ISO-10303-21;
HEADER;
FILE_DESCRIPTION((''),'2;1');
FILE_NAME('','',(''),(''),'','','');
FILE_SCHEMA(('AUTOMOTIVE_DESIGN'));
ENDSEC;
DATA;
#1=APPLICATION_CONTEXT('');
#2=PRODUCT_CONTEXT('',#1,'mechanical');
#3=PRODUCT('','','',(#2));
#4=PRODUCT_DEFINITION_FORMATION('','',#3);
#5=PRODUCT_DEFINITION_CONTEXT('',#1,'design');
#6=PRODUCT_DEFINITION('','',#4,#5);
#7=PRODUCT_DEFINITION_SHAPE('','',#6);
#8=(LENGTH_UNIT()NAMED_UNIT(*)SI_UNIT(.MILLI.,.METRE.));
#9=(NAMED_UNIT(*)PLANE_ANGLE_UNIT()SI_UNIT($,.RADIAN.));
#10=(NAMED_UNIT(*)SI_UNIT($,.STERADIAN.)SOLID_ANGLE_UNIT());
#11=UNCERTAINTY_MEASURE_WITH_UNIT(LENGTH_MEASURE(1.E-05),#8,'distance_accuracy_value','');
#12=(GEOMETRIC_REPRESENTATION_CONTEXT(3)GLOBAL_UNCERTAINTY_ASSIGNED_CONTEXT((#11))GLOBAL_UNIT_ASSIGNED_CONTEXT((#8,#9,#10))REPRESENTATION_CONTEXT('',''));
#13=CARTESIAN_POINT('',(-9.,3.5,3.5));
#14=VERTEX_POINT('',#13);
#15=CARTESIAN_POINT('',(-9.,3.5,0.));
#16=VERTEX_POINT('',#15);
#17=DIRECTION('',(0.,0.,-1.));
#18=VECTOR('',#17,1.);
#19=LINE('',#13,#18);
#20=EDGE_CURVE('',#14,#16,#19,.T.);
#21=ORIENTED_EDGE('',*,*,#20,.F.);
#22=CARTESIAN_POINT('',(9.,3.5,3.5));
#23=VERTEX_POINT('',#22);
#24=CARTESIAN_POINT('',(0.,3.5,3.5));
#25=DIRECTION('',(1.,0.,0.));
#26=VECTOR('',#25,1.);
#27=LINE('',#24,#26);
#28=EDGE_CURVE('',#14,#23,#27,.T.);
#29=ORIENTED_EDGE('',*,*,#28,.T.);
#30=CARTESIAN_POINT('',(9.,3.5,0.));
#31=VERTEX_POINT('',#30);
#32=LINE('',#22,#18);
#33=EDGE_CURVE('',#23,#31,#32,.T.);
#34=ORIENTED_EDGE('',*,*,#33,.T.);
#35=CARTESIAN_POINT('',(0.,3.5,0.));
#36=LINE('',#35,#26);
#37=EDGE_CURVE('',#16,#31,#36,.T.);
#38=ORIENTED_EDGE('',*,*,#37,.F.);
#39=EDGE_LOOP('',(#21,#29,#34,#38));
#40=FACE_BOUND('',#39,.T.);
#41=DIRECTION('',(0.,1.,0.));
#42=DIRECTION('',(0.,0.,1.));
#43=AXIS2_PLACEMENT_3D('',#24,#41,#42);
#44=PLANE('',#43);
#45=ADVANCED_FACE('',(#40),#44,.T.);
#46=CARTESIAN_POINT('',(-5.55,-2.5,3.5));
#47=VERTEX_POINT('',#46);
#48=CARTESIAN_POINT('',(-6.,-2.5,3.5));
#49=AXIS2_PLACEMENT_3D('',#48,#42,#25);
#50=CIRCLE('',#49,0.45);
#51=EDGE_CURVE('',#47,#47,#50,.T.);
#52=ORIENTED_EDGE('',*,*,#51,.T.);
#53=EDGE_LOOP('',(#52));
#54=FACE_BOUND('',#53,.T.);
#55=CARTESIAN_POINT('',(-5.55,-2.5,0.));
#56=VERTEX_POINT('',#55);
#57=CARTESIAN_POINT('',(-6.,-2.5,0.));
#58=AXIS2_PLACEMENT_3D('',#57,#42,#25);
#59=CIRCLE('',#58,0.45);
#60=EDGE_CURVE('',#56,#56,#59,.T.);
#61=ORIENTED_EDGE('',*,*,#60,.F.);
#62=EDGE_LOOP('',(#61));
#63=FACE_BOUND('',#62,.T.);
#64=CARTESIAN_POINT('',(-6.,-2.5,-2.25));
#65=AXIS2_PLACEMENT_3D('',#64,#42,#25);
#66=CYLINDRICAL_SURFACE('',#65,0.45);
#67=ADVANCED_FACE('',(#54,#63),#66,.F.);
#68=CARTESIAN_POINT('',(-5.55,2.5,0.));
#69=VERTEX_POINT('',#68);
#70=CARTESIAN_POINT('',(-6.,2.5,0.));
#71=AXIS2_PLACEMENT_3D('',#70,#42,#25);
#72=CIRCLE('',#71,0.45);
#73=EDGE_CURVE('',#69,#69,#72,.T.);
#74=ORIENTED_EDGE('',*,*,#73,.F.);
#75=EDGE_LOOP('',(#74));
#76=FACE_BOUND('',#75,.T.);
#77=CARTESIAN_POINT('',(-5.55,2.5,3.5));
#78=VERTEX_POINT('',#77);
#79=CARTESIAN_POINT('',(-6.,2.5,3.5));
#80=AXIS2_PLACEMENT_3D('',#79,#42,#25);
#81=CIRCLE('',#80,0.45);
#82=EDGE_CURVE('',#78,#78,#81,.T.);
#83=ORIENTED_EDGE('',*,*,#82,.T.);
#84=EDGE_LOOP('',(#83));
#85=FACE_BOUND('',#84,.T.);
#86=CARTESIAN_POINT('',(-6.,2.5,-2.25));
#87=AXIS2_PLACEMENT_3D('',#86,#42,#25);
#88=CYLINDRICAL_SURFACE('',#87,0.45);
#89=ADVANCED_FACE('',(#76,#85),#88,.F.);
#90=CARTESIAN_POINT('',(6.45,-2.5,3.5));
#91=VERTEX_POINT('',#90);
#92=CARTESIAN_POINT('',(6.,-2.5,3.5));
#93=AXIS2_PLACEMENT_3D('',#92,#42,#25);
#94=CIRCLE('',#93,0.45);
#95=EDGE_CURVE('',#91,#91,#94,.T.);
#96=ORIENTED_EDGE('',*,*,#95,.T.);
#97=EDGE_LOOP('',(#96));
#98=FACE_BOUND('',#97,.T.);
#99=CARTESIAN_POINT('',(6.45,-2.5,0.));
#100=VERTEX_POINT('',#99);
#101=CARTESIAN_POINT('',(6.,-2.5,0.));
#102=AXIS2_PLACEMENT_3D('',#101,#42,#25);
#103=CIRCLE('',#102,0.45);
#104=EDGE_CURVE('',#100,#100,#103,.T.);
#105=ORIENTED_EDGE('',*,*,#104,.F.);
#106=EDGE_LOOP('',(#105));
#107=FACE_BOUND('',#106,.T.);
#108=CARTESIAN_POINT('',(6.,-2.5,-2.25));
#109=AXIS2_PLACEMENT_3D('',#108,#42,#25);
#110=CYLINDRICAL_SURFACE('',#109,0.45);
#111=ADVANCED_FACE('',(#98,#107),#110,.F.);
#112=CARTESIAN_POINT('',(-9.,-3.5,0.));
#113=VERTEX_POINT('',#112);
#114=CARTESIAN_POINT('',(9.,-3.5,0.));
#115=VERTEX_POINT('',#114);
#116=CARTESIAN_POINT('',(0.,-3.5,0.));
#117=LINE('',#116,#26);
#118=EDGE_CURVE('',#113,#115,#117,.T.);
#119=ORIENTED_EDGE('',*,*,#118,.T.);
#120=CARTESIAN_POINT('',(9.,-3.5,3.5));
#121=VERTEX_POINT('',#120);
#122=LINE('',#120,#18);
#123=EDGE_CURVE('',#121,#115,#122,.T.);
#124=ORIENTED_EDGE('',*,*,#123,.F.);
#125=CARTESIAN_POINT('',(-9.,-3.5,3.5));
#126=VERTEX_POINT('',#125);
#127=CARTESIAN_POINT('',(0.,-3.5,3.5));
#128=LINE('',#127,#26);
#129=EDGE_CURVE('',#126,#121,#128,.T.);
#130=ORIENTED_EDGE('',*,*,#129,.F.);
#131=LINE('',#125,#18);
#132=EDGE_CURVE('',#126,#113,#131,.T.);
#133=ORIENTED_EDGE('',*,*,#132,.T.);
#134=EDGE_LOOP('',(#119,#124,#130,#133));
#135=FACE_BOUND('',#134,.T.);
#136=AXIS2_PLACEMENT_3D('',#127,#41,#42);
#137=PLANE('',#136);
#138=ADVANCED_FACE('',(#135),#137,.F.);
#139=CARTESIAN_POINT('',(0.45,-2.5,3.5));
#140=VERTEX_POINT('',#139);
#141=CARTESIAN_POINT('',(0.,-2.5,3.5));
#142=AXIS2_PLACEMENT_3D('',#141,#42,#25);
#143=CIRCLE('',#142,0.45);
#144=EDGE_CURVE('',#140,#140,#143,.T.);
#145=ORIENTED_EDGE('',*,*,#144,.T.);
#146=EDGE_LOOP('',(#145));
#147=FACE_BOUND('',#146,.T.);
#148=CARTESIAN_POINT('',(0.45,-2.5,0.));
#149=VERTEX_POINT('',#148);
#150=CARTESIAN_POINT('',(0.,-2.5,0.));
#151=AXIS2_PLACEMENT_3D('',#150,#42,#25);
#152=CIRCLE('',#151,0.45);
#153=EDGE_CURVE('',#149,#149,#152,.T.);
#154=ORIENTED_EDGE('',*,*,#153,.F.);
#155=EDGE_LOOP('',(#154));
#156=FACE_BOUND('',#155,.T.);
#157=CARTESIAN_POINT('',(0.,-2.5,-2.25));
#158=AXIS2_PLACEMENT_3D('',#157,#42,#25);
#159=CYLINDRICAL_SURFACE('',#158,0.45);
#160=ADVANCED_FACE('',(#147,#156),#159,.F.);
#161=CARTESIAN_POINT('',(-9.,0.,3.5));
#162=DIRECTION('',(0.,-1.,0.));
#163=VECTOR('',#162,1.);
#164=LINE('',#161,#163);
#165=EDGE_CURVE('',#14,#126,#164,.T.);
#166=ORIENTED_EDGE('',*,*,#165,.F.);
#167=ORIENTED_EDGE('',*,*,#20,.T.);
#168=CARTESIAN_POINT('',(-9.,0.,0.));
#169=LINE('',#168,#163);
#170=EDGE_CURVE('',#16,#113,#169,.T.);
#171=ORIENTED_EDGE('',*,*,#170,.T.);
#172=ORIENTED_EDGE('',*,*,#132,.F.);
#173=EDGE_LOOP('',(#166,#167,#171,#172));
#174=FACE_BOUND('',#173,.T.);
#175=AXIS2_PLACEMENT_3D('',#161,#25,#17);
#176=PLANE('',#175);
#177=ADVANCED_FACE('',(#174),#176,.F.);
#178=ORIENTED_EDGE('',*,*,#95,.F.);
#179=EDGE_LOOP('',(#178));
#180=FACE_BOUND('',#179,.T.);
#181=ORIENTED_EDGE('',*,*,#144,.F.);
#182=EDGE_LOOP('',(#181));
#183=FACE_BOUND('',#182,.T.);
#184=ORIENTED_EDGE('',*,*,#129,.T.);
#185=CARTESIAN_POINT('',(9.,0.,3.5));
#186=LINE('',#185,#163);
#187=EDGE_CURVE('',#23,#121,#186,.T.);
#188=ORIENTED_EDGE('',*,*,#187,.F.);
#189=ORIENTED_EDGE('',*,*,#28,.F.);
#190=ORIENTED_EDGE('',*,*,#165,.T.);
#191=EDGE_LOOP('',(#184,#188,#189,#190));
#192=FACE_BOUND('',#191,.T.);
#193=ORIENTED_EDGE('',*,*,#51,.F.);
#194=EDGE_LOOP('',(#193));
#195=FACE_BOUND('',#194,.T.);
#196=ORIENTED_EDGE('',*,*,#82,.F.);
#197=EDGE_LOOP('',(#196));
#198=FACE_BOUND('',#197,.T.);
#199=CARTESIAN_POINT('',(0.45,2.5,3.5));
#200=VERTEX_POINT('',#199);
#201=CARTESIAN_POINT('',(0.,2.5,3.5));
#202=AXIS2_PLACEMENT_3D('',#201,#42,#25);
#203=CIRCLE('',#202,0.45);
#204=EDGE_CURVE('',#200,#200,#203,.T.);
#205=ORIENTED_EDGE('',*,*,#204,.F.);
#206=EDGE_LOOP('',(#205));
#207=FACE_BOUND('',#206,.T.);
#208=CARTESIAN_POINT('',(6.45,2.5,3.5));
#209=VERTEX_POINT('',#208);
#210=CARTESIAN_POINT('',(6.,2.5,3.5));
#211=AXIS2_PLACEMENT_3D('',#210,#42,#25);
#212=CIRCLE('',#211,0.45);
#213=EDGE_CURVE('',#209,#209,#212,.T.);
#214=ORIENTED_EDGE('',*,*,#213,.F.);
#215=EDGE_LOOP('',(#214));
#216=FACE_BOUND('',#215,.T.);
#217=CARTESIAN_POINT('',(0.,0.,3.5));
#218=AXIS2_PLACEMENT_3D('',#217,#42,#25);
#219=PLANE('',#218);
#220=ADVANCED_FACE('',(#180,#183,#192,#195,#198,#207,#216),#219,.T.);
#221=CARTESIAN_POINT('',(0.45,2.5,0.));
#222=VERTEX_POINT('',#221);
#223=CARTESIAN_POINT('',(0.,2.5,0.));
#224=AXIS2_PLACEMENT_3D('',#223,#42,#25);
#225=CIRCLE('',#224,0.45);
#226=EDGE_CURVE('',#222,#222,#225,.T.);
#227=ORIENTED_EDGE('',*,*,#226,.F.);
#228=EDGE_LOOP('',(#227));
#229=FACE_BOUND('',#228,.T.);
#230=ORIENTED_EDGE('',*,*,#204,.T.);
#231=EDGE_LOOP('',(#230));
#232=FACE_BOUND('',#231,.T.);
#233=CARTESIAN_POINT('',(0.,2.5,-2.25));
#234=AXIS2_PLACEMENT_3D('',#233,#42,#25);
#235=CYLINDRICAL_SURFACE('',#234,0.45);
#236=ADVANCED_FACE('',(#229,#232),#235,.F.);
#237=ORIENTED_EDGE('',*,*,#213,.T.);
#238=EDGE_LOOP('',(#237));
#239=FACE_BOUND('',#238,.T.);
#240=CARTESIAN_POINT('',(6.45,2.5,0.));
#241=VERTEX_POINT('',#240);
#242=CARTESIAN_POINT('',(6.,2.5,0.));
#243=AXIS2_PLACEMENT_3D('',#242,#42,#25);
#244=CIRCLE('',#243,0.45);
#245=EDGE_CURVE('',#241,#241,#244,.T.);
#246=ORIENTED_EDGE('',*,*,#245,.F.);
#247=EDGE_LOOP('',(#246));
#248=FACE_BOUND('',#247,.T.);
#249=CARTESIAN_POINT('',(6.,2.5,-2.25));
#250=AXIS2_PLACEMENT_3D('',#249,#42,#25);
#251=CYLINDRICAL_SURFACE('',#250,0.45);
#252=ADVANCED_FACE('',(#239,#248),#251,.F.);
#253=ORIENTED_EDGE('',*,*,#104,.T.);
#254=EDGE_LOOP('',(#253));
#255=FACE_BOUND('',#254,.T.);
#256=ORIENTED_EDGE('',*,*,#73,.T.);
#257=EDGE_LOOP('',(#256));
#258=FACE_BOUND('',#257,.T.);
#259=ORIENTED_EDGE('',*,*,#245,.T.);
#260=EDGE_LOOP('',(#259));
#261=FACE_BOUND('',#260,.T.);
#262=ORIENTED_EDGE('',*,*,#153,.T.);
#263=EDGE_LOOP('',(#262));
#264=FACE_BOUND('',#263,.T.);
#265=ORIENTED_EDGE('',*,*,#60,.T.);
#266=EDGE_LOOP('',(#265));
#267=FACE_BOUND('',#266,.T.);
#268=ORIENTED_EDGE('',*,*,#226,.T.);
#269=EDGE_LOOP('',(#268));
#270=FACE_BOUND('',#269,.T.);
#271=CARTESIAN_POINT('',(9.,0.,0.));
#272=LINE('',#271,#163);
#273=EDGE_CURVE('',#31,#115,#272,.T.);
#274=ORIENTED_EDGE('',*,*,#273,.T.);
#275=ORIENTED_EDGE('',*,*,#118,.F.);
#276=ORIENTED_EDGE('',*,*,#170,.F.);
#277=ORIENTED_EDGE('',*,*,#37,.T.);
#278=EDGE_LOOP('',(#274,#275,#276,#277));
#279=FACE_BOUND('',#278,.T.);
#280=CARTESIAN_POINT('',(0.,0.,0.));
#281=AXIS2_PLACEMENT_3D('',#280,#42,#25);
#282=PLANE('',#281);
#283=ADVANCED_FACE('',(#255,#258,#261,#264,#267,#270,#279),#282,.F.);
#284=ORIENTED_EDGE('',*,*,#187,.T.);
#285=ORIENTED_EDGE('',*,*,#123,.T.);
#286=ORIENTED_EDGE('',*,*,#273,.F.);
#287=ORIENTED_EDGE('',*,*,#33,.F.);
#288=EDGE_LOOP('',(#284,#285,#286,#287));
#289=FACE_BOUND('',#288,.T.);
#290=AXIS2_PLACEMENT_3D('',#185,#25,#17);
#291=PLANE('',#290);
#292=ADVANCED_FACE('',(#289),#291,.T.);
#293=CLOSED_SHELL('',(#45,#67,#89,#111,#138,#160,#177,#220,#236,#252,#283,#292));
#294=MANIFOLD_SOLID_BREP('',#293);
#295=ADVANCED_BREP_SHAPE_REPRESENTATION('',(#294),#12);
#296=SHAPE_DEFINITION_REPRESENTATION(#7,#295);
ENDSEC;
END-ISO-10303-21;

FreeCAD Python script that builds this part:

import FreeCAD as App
import Part
import Sketcher
Q = App.Units.Quantity


def add_polygon(sketch, points):
    """Adds a closed chain of lines whose ends are joined by coincident constraints."""
    first, n = sketch.GeometryCount, len(points)
    for a, b in zip(points, points[1:] + points[:1]):
        sketch.addGeometry(Part.LineSegment(App.Vector(*a, 0), App.Vector(*b, 0)), False)
    for i in range(n):
        sketch.addConstraint(Sketcher.Constraint("Coincident", first + i, 2, first + (i + 1) % n, 1))

doc = App.newDocument("Part")
body = doc.addObject("PartDesign::Body", "Body")

sketch1 = doc.addObject("Sketcher::SketchObject", "Sketch")
body.addObject(sketch1)
sketch1.AttachmentSupport = (doc.XY_Plane, [""])
sketch1.MapMode = "FlatFace"
add_polygon(sketch1, [(-9, 4), (-9, -4), (9, -4), (9, 4)])
sketch1.addConstraint([
    Sketcher.Constraint("Vertical", 0),
    Sketcher.Constraint("Horizontal", 1),
    Sketcher.Constraint("Vertical", 2),
    Sketcher.Constraint("Horizontal", 3),
    Sketcher.Constraint("Symmetric", 0, 2, 2, 2, -1, 1),
    Sketcher.Constraint("DistanceX", 1, 1, 1, 2, Q("18 mm")),
    Sketcher.Constraint("DistanceY", 0, 2, 0, 1, Q("7 mm")),
])
pad1 = doc.addObject("PartDesign::Pad", "Pad")
body.addObject(pad1)
pad1.Profile = sketch1
pad1.Length = 3.5

sketch2 = doc.addObject("Sketcher::SketchObject", "Sketch001")
body.addObject(sketch2)
sketch2.AttachmentSupport = (doc.XY_Plane, [""])
sketch2.MapMode = "FlatFace"
sketch2.AttachmentOffset = App.Placement(App.Vector(0, 0, 3.5), App.Rotation())
sketch2.addGeometry([
    Part.Circle(App.Vector(-6, 2.5, 0), App.Vector(0, 0, 1), 0.45),
    Part.Circle(App.Vector(-6, -2.5, 0), App.Vector(0, 0, 1), 0.45),
    Part.Circle(App.Vector(6, 2.5, 0), App.Vector(0, 0, 1), 0.45),
    Part.Circle(App.Vector(6, -2.5, 0), App.Vector(0, 0, 1), 0.45),
    Part.Circle(App.Vector(0, 2.5, 0), App.Vector(0, 0, 1), 0.45),
    Part.Circle(App.Vector(0, -2.5, 0), App.Vector(0, 0, 1), 0.45),
], False)
sketch2.addConstraint([
    Sketcher.Constraint("Equal", 0, 1),
    Sketcher.Constraint("Equal", 1, 2),
    Sketcher.Constraint("Equal", 2, 3),
    Sketcher.Constraint("Equal", 3, 4),
    Sketcher.Constraint("Equal", 4, 5),
    Sketcher.Constraint("Symmetric", 1, 3, 2, 3, -1, 1),
    Sketcher.Constraint("Symmetric", 0, 3, 3, 3, -1, 1),
    Sketcher.Constraint("Symmetric", 4, 3, 5, 3, -1, 1),
    Sketcher.Constraint("Symmetric", 0, 3, 2, 3, -2),
    Sketcher.Constraint("PointOnObject", 4, 3, -2),
    Sketcher.Constraint("Horizontal", 2, 3, 4, 3),
    Sketcher.Constraint("Diameter", 0, Q("0.9 mm")),
    Sketcher.Constraint("DistanceX", 0, 3, -1, 1, Q("6 mm")),
    Sketcher.Constraint("DistanceY", 1, 3, 0, 3, Q("5 mm")),
])
pocket1 = doc.addObject("PartDesign::Pocket", "Pocket")
body.addObject(pocket1)
pocket1.Profile = sketch2
pocket1.Length = 5.75

doc.recompute()
